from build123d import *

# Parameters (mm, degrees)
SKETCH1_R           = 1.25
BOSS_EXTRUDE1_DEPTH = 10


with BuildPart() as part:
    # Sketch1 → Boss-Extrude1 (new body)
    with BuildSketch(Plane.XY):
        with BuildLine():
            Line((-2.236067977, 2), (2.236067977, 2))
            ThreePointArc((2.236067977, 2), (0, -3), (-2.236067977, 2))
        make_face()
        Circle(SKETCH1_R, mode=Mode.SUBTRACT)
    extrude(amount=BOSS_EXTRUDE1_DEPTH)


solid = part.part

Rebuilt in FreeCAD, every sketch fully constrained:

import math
import FreeCAD as App
import Part
import Sketcher
Q = App.Units.Quantity

doc = App.newDocument("Part")
params = doc.addObject("Spreadsheet::Sheet", "Params")
for row, (alias, value) in enumerate([
    ("sketch1_radius", "3 mm"),
    ("sketch1_diameter", "2.5 mm"),
    ("pad1_length", "10 mm"),
], start=1):
    params.set(f"A{row}", alias)
    params.set(f"B{row}", "=" + value)
    params.setAlias(f"B{row}", alias)

body = doc.addObject("PartDesign::Body", "Body")

# Sketch on XY plane
sketch1 = doc.addObject("Sketcher::SketchObject", "Sketch")
body.addObject(sketch1)
sketch1.AttachmentSupport = (doc.XY_Plane, [""])
sketch1.MapMode = "FlatFace"
sketch1.addGeometry([
    Part.LineSegment(App.Vector(2.236068, 2, 0), App.Vector(-2.236068, 2, 0)),
    Part.ArcOfCircle(Part.Circle(App.Vector(0, 0, 0), App.Vector(0, 0, 1), 3), math.radians(138.189685), math.radians(401.810315)),
    Part.Circle(App.Vector(0, 0, 0), App.Vector(0, 0, 1), 1.25),
], False)
sketch1.addConstraint([
    Sketcher.Constraint("Coincident", 0, 1, 1, 2),
    Sketcher.Constraint("Coincident", 1, 1, 0, 2),
    Sketcher.Constraint("Horizontal", 0),
    Sketcher.Constraint("Coincident", 1, 3, -1, 1),
    Sketcher.Constraint("Coincident", 2, 3, -1, 1),
    Sketcher.Constraint("Radius", 1, Q("3 mm")),
    Sketcher.Constraint("Diameter", 2, Q("2.5 mm")),
    Sketcher.Constraint("DistanceY", -1, 1, 0, 1, Q("2 mm")),
])
sketch1.setExpression("Constraints[5]", "Params.sketch1_radius")
sketch1.setExpression("Constraints[6]", "Params.sketch1_diameter")
pad1 = doc.addObject("PartDesign::Pad", "Pad")
body.addObject(pad1)
pad1.Profile = sketch1
pad1.setExpression("Length", "Params.pad1_length")

doc.recompute()
